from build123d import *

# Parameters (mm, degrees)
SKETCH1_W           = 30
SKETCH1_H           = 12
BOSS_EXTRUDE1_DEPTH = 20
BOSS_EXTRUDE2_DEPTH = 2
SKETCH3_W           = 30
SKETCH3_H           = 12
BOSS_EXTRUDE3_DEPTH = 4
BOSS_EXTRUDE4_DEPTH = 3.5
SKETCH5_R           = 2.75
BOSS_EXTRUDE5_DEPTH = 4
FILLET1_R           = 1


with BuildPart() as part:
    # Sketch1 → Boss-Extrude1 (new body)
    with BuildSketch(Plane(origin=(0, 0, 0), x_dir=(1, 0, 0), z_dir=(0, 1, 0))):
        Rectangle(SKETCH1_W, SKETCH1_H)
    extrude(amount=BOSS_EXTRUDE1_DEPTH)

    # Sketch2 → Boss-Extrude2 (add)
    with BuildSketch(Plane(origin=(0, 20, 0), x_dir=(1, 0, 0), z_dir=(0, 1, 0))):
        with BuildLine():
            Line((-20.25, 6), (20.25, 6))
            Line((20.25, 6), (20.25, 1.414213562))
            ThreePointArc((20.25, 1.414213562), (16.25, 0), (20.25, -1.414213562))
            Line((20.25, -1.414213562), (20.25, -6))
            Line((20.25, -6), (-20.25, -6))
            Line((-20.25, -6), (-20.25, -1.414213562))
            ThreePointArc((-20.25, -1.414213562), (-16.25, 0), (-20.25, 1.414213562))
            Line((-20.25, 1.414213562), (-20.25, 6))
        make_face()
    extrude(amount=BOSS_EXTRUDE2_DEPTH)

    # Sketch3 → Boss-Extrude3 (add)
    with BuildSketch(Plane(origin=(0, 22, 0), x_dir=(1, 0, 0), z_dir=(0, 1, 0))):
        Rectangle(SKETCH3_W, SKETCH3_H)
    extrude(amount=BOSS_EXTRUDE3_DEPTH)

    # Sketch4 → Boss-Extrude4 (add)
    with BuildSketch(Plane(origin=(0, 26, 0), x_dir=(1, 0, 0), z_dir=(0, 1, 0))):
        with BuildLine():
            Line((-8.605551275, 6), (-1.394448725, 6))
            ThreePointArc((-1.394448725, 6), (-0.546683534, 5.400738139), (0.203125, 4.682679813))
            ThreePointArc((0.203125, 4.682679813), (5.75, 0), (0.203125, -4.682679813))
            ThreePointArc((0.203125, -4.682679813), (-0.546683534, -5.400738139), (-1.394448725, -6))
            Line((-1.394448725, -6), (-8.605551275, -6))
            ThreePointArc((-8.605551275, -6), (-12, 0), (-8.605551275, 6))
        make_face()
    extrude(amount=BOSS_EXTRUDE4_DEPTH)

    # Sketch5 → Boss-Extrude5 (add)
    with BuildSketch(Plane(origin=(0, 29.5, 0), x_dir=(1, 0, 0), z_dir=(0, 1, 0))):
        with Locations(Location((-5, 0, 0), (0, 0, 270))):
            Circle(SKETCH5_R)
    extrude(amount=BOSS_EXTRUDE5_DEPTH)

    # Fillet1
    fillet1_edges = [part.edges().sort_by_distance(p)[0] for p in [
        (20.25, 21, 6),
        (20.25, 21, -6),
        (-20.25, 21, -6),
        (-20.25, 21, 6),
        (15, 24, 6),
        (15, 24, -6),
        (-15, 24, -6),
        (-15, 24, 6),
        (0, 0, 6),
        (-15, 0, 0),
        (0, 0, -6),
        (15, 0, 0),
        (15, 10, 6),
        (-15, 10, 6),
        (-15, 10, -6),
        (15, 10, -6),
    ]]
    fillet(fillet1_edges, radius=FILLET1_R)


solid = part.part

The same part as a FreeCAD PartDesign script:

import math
import FreeCAD as App
import Part
import Sketcher


def edges_at(feature, points):
    """Names of the edges that pass closest to the given points."""
    edges = feature.Shape.Edges
    near = lambda p: min(range(len(edges)), key=lambda i: edges[i].distToShape(Part.Vertex(*p))[0])
    return sorted({f"Edge{near(p) + 1}" for p in points})

doc = App.newDocument("Part")
body = doc.addObject("PartDesign::Body", "Body")

sketch1 = body.newObject("Sketcher::SketchObject", "Sketch")
sketch1.AttachmentSupport = (doc.getObject("XZ_Plane"), [""])
sketch1.MapMode = "FlatFace"
sketch1.addGeometry(Part.LineSegment(App.Vector(-15, -6, 0), App.Vector(-15, 6, 0)), False)
sketch1.addGeometry(Part.LineSegment(App.Vector(-15, 6, 0), App.Vector(15, 6, 0)), False)
sketch1.addGeometry(Part.LineSegment(App.Vector(15, 6, 0), App.Vector(15, -6, 0)), False)
sketch1.addGeometry(Part.LineSegment(App.Vector(15, -6, 0), App.Vector(-15, -6, 0)), False)
sketch1.addConstraint(Sketcher.Constraint("Coincident", 0, 2, 1, 1))
sketch1.addConstraint(Sketcher.Constraint("Coincident", 1, 2, 2, 1))
sketch1.addConstraint(Sketcher.Constraint("Coincident", 2, 2, 3, 1))
sketch1.addConstraint(Sketcher.Constraint("Coincident", 3, 2, 0, 1))
sketch1.addConstraint(Sketcher.Constraint("Vertical", 0))
sketch1.addConstraint(Sketcher.Constraint("Horizontal", 1))
sketch1.addConstraint(Sketcher.Constraint("Vertical", 2))
sketch1.addConstraint(Sketcher.Constraint("Horizontal", 3))
sketch1.addConstraint(Sketcher.Constraint("Symmetric", 0, 2, 2, 2, -1, 1))
sketch1.addConstraint(Sketcher.Constraint("DistanceX", 1, 1, 1, 2, 30.0))
sketch1.addConstraint(Sketcher.Constraint("DistanceY", 0, 1, 0, 2, 12.0))
pad1 = body.newObject("PartDesign::Pad", "Pad")
pad1.Profile = sketch1
pad1.Length = 20
pad1.Reversed = True

sketch2 = body.newObject("Sketcher::SketchObject", "Sketch001")
sketch2.AttachmentSupport = (doc.getObject("XZ_Plane"), [""])
sketch2.MapMode = "FlatFace"
sketch2.AttachmentOffset = App.Placement(App.Vector(0, 0, -20), App.Rotation())
sketch2.addGeometry(Part.LineSegment(App.Vector(20.2, -6, 0), App.Vector(-20.2, -6, 0)), False)
sketch2.addGeometry(Part.LineSegment(App.Vector(-20.2, -6, 0), App.Vector(-20.2, -1.4, 0)), False)
sketch2.addGeometry(Part.ArcOfCircle(Part.Circle(App.Vector(-18.5, 0, 0), App.Vector(0, 0, 1), 2.2), math.radians(-141), math.radians(141)), False)
sketch2.addGeometry(Part.LineSegment(App.Vector(-20.2, 1.4, 0), App.Vector(-20.2, 6, 0)), False)
sketch2.addGeometry(Part.LineSegment(App.Vector(-20.2, 6, 0), App.Vector(20.2, 6, 0)), False)
sketch2.addGeometry(Part.LineSegment(App.Vector(20.2, 6, 0), App.Vector(20.2, 1.4, 0)), False)
sketch2.addGeometry(Part.ArcOfCircle(Part.Circle(App.Vector(18.5, 0, 0), App.Vector(0, 0, 1), 2.2), math.radians(39), math.radians(321)), False)
sketch2.addGeometry(Part.LineSegment(App.Vector(20.2, -1.4, 0), App.Vector(20.2, -6, 0)), False)
sketch2.addConstraint(Sketcher.Constraint("Coincident", 0, 2, 1, 1))
sketch2.addConstraint(Sketcher.Constraint("Coincident", 1, 2, 2, 1))
sketch2.addConstraint(Sketcher.Constraint("Coincident", 2, 2, 3, 1))
sketch2.addConstraint(Sketcher.Constraint("Coincident", 3, 2, 4, 1))
sketch2.addConstraint(Sketcher.Constraint("Coincident", 4, 2, 5, 1))
sketch2.addConstraint(Sketcher.Constraint("Coincident", 5, 2, 6, 1))
sketch2.addConstraint(Sketcher.Constraint("Coincident", 6, 2, 7, 1))
sketch2.addConstraint(Sketcher.Constraint("Coincident", 7, 2, 0, 1))
sketch2.addConstraint(Sketcher.Constraint("Horizontal", 0))
sketch2.addConstraint(Sketcher.Constraint("Vertical", 1))
sketch2.addConstraint(Sketcher.Constraint("Vertical", 3))
sketch2.addConstraint(Sketcher.Constraint("Horizontal", 4))
sketch2.addConstraint(Sketcher.Constraint("Vertical", 5))
sketch2.addConstraint(Sketcher.Constraint("Vertical", 7))
sketch2.addConstraint(Sketcher.Constraint("Equal", 2, 6))
sketch2.addConstraint(Sketcher.Constraint("Symmetric", 2, 3, 6, 3, -1, 1))
sketch2.addConstraint(Sketcher.Constraint("Symmetric", 0, 2, 4, 2, -1, 1))
sketch2.addConstraint(Sketcher.Constraint("Symmetric", 2, 2, 5, 2, -2))
sketch2.addConstraint(Sketcher.Constraint("Horizontal", 1, 2, 6, 2))
sketch2.addConstraint(Sketcher.Constraint("Radius", 2, 2.25))
sketch2.addConstraint(Sketcher.Constraint("DistanceX", 0, 2, 0, 1, 40.5))
sketch2.addConstraint(Sketcher.Constraint("DistanceY", 0, 2, -1, 1, 6.0))
sketch2.addConstraint(Sketcher.Constraint("DistanceX", 2, 3, 6, 3, 37.0))
pad2 = body.newObject("PartDesign::Pad", "Pad001")
pad2.Profile = sketch2
pad2.Length = 2
pad2.Reversed = True

sketch3 = body.newObject("Sketcher::SketchObject", "Sketch002")
sketch3.AttachmentSupport = (doc.getObject("XZ_Plane"), [""])
sketch3.MapMode = "FlatFace"
sketch3.AttachmentOffset = App.Placement(App.Vector(0, 0, -22), App.Rotation())
sketch3.addGeometry(Part.LineSegment(App.Vector(-15, -6, 0), App.Vector(-15, 6, 0)), False)
sketch3.addGeometry(Part.LineSegment(App.Vector(-15, 6, 0), App.Vector(15, 6, 0)), False)
sketch3.addGeometry(Part.LineSegment(App.Vector(15, 6, 0), App.Vector(15, -6, 0)), False)
sketch3.addGeometry(Part.LineSegment(App.Vector(15, -6, 0), App.Vector(-15, -6, 0)), False)
sketch3.addConstraint(Sketcher.Constraint("Coincident", 0, 2, 1, 1))
sketch3.addConstraint(Sketcher.Constraint("Coincident", 1, 2, 2, 1))
sketch3.addConstraint(Sketcher.Constraint("Coincident", 2, 2, 3, 1))
sketch3.addConstraint(Sketcher.Constraint("Coincident", 3, 2, 0, 1))
sketch3.addConstraint(Sketcher.Constraint("Vertical", 0))
sketch3.addConstraint(Sketcher.Constraint("Horizontal", 1))
sketch3.addConstraint(Sketcher.Constraint("Vertical", 2))
sketch3.addConstraint(Sketcher.Constraint("Horizontal", 3))
sketch3.addConstraint(Sketcher.Constraint("Symmetric", 0, 2, 2, 2, -1, 1))
sketch3.addConstraint(Sketcher.Constraint("DistanceX", 1, 1, 1, 2, 30.0))
sketch3.addConstraint(Sketcher.Constraint("DistanceY", 0, 1, 0, 2, 12.0))
pad3 = body.newObject("PartDesign::Pad", "Pad002")
pad3.Profile = sketch3
pad3.Length = 4
pad3.Reversed = True

sketch4 = body.newObject("Sketcher::SketchObject", "Sketch003")
sketch4.AttachmentSupport = (doc.getObject("XZ_Plane"), [""])
sketch4.MapMode = "FlatFace"
sketch4.AttachmentOffset = App.Placement(App.Vector(0, 0, -26), App.Rotation())
sketch4.addGeometry(Part.LineSegment(App.Vector(-1.4, -6, 0), App.Vector(-8.6, -6, 0)), False)
sketch4.addGeometry(Part.ArcOfCircle(Part.Circle(App.Vector(-5, 0, 0), App.Vector(0, 0, 1), 7), math.radians(121), math.radians(239)), False)
sketch4.addGeometry(Part.LineSegment(App.Vector(-8.6, 6, 0), App.Vector(-1.4, 6, 0)), False)
sketch4.addGeometry(Part.ArcOfCircle(Part.Circle(App.Vector(-5, 0, 0), App.Vector(0, 0, 1), 7), math.radians(41.99), math.radians(59)), False)
sketch4.addGeometry(Part.ArcOfCircle(Part.Circle(App.Vector(1, 0, 0), App.Vector(0, 0, 1), 4.8), math.radians(-100), math.radians(100)), False)
sketch4.addGeometry(Part.ArcOfCircle(Part.Circle(App.Vector(-5, 0, 0), App.Vector(0, 0, 1), 7), math.radians(-59), math.radians(-41.99)), False)
sketch4.addConstraint(Sketcher.Constraint("Coincident", 0, 2, 1, 2))
sketch4.addConstraint(Sketcher.Constraint("Coincident", 1, 1, 2, 1))
sketch4.addConstraint(Sketcher.Constraint("Coincident", 2, 2, 3, 2))
sketch4.addConstraint(Sketcher.Constraint("Coincident", 3, 1, 4, 2))
sketch4.addConstraint(Sketcher.Constraint("Coincident", 4, 1, 5, 2))
sketch4.addConstraint(Sketcher.Constraint("Coincident", 5, 1, 0, 1))
sketch4.addConstraint(Sketcher.Constraint("Horizontal", 0))
sketch4.addConstraint(Sketcher.Constraint("Horizontal", 2))
sketch4.addConstraint(Sketcher.Constraint("Coincident", 3, 3, 1, 3))
sketch4.addConstraint(Sketcher.Constraint("Coincident", 5, 3, 1, 3))
sketch4.addConstraint(Sketcher.Constraint("Equal", 1, 3))
sketch4.addConstraint(Sketcher.Constraint("Equal", 3, 5))
sketch4.addConstraint(Sketcher.Constraint("Symmetric", 0, 2, 1, 1, -1))
sketch4.addConstraint(Sketcher.Constraint("PointOnObject", 4, 3, -1))
sketch4.addConstraint(Sketcher.Constraint("Radius", 1, 7.0))
sketch4.addConstraint(Sketcher.Constraint("Radius", 4, 4.75))
sketch4.addConstraint(Sketcher.Constraint("DistanceX", 1, 3, -1, 1, 5.0))
sketch4.addConstraint(Sketcher.Constraint("DistanceX", -1, 1, 4, 3, 1.0))
sketch4.addConstraint(Sketcher.Constraint("DistanceY", 0, 2, -1, 1, 6.0))
pad4 = body.newObject("PartDesign::Pad", "Pad003")
pad4.Profile = sketch4
pad4.Length = 3.5
pad4.Reversed = True

sketch5 = body.newObject("Sketcher::SketchObject", "Sketch004")
sketch5.AttachmentSupport = (doc.getObject("XZ_Plane"), [""])
sketch5.MapMode = "FlatFace"
sketch5.AttachmentOffset = App.Placement(App.Vector(0, 0, -29.5), App.Rotation())
sketch5.addGeometry(Part.Circle(App.Vector(-5, 0, 0), App.Vector(0, 0, 1), 2.8), False)
sketch5.addConstraint(Sketcher.Constraint("PointOnObject", 0, 3, -1))
sketch5.addConstraint(Sketcher.Constraint("Diameter", 0, 5.5))
sketch5.addConstraint(Sketcher.Constraint("DistanceX", 0, 3, -1, 1, 5.0))
pad5 = body.newObject("PartDesign::Pad", "Pad004")
pad5.Profile = sketch5
pad5.Length = 4
pad5.Reversed = True
doc.recompute()

fillet = body.newObject("PartDesign::Fillet", "Fillet")
fillet.Base = (pad5, edges_at(pad5, [
    (20.25, 21, 6),
    (20.25, 21, -6),
    (-20.25, 21, -6),
    (-20.25, 21, 6),
    (15, 24, 6),
    (15, 24, -6),
    (-15, 24, -6),
    (-15, 24, 6),
    (0, 0, 6),
    (-15, 0, 0),
    (0, 0, -6),
    (15, 0, 0),
    (15, 10, 6),
    (-15, 10, 6),
    (-15, 10, -6),
    (15, 10, -6),
]))
fillet.Radius = 1

doc.recompute()
